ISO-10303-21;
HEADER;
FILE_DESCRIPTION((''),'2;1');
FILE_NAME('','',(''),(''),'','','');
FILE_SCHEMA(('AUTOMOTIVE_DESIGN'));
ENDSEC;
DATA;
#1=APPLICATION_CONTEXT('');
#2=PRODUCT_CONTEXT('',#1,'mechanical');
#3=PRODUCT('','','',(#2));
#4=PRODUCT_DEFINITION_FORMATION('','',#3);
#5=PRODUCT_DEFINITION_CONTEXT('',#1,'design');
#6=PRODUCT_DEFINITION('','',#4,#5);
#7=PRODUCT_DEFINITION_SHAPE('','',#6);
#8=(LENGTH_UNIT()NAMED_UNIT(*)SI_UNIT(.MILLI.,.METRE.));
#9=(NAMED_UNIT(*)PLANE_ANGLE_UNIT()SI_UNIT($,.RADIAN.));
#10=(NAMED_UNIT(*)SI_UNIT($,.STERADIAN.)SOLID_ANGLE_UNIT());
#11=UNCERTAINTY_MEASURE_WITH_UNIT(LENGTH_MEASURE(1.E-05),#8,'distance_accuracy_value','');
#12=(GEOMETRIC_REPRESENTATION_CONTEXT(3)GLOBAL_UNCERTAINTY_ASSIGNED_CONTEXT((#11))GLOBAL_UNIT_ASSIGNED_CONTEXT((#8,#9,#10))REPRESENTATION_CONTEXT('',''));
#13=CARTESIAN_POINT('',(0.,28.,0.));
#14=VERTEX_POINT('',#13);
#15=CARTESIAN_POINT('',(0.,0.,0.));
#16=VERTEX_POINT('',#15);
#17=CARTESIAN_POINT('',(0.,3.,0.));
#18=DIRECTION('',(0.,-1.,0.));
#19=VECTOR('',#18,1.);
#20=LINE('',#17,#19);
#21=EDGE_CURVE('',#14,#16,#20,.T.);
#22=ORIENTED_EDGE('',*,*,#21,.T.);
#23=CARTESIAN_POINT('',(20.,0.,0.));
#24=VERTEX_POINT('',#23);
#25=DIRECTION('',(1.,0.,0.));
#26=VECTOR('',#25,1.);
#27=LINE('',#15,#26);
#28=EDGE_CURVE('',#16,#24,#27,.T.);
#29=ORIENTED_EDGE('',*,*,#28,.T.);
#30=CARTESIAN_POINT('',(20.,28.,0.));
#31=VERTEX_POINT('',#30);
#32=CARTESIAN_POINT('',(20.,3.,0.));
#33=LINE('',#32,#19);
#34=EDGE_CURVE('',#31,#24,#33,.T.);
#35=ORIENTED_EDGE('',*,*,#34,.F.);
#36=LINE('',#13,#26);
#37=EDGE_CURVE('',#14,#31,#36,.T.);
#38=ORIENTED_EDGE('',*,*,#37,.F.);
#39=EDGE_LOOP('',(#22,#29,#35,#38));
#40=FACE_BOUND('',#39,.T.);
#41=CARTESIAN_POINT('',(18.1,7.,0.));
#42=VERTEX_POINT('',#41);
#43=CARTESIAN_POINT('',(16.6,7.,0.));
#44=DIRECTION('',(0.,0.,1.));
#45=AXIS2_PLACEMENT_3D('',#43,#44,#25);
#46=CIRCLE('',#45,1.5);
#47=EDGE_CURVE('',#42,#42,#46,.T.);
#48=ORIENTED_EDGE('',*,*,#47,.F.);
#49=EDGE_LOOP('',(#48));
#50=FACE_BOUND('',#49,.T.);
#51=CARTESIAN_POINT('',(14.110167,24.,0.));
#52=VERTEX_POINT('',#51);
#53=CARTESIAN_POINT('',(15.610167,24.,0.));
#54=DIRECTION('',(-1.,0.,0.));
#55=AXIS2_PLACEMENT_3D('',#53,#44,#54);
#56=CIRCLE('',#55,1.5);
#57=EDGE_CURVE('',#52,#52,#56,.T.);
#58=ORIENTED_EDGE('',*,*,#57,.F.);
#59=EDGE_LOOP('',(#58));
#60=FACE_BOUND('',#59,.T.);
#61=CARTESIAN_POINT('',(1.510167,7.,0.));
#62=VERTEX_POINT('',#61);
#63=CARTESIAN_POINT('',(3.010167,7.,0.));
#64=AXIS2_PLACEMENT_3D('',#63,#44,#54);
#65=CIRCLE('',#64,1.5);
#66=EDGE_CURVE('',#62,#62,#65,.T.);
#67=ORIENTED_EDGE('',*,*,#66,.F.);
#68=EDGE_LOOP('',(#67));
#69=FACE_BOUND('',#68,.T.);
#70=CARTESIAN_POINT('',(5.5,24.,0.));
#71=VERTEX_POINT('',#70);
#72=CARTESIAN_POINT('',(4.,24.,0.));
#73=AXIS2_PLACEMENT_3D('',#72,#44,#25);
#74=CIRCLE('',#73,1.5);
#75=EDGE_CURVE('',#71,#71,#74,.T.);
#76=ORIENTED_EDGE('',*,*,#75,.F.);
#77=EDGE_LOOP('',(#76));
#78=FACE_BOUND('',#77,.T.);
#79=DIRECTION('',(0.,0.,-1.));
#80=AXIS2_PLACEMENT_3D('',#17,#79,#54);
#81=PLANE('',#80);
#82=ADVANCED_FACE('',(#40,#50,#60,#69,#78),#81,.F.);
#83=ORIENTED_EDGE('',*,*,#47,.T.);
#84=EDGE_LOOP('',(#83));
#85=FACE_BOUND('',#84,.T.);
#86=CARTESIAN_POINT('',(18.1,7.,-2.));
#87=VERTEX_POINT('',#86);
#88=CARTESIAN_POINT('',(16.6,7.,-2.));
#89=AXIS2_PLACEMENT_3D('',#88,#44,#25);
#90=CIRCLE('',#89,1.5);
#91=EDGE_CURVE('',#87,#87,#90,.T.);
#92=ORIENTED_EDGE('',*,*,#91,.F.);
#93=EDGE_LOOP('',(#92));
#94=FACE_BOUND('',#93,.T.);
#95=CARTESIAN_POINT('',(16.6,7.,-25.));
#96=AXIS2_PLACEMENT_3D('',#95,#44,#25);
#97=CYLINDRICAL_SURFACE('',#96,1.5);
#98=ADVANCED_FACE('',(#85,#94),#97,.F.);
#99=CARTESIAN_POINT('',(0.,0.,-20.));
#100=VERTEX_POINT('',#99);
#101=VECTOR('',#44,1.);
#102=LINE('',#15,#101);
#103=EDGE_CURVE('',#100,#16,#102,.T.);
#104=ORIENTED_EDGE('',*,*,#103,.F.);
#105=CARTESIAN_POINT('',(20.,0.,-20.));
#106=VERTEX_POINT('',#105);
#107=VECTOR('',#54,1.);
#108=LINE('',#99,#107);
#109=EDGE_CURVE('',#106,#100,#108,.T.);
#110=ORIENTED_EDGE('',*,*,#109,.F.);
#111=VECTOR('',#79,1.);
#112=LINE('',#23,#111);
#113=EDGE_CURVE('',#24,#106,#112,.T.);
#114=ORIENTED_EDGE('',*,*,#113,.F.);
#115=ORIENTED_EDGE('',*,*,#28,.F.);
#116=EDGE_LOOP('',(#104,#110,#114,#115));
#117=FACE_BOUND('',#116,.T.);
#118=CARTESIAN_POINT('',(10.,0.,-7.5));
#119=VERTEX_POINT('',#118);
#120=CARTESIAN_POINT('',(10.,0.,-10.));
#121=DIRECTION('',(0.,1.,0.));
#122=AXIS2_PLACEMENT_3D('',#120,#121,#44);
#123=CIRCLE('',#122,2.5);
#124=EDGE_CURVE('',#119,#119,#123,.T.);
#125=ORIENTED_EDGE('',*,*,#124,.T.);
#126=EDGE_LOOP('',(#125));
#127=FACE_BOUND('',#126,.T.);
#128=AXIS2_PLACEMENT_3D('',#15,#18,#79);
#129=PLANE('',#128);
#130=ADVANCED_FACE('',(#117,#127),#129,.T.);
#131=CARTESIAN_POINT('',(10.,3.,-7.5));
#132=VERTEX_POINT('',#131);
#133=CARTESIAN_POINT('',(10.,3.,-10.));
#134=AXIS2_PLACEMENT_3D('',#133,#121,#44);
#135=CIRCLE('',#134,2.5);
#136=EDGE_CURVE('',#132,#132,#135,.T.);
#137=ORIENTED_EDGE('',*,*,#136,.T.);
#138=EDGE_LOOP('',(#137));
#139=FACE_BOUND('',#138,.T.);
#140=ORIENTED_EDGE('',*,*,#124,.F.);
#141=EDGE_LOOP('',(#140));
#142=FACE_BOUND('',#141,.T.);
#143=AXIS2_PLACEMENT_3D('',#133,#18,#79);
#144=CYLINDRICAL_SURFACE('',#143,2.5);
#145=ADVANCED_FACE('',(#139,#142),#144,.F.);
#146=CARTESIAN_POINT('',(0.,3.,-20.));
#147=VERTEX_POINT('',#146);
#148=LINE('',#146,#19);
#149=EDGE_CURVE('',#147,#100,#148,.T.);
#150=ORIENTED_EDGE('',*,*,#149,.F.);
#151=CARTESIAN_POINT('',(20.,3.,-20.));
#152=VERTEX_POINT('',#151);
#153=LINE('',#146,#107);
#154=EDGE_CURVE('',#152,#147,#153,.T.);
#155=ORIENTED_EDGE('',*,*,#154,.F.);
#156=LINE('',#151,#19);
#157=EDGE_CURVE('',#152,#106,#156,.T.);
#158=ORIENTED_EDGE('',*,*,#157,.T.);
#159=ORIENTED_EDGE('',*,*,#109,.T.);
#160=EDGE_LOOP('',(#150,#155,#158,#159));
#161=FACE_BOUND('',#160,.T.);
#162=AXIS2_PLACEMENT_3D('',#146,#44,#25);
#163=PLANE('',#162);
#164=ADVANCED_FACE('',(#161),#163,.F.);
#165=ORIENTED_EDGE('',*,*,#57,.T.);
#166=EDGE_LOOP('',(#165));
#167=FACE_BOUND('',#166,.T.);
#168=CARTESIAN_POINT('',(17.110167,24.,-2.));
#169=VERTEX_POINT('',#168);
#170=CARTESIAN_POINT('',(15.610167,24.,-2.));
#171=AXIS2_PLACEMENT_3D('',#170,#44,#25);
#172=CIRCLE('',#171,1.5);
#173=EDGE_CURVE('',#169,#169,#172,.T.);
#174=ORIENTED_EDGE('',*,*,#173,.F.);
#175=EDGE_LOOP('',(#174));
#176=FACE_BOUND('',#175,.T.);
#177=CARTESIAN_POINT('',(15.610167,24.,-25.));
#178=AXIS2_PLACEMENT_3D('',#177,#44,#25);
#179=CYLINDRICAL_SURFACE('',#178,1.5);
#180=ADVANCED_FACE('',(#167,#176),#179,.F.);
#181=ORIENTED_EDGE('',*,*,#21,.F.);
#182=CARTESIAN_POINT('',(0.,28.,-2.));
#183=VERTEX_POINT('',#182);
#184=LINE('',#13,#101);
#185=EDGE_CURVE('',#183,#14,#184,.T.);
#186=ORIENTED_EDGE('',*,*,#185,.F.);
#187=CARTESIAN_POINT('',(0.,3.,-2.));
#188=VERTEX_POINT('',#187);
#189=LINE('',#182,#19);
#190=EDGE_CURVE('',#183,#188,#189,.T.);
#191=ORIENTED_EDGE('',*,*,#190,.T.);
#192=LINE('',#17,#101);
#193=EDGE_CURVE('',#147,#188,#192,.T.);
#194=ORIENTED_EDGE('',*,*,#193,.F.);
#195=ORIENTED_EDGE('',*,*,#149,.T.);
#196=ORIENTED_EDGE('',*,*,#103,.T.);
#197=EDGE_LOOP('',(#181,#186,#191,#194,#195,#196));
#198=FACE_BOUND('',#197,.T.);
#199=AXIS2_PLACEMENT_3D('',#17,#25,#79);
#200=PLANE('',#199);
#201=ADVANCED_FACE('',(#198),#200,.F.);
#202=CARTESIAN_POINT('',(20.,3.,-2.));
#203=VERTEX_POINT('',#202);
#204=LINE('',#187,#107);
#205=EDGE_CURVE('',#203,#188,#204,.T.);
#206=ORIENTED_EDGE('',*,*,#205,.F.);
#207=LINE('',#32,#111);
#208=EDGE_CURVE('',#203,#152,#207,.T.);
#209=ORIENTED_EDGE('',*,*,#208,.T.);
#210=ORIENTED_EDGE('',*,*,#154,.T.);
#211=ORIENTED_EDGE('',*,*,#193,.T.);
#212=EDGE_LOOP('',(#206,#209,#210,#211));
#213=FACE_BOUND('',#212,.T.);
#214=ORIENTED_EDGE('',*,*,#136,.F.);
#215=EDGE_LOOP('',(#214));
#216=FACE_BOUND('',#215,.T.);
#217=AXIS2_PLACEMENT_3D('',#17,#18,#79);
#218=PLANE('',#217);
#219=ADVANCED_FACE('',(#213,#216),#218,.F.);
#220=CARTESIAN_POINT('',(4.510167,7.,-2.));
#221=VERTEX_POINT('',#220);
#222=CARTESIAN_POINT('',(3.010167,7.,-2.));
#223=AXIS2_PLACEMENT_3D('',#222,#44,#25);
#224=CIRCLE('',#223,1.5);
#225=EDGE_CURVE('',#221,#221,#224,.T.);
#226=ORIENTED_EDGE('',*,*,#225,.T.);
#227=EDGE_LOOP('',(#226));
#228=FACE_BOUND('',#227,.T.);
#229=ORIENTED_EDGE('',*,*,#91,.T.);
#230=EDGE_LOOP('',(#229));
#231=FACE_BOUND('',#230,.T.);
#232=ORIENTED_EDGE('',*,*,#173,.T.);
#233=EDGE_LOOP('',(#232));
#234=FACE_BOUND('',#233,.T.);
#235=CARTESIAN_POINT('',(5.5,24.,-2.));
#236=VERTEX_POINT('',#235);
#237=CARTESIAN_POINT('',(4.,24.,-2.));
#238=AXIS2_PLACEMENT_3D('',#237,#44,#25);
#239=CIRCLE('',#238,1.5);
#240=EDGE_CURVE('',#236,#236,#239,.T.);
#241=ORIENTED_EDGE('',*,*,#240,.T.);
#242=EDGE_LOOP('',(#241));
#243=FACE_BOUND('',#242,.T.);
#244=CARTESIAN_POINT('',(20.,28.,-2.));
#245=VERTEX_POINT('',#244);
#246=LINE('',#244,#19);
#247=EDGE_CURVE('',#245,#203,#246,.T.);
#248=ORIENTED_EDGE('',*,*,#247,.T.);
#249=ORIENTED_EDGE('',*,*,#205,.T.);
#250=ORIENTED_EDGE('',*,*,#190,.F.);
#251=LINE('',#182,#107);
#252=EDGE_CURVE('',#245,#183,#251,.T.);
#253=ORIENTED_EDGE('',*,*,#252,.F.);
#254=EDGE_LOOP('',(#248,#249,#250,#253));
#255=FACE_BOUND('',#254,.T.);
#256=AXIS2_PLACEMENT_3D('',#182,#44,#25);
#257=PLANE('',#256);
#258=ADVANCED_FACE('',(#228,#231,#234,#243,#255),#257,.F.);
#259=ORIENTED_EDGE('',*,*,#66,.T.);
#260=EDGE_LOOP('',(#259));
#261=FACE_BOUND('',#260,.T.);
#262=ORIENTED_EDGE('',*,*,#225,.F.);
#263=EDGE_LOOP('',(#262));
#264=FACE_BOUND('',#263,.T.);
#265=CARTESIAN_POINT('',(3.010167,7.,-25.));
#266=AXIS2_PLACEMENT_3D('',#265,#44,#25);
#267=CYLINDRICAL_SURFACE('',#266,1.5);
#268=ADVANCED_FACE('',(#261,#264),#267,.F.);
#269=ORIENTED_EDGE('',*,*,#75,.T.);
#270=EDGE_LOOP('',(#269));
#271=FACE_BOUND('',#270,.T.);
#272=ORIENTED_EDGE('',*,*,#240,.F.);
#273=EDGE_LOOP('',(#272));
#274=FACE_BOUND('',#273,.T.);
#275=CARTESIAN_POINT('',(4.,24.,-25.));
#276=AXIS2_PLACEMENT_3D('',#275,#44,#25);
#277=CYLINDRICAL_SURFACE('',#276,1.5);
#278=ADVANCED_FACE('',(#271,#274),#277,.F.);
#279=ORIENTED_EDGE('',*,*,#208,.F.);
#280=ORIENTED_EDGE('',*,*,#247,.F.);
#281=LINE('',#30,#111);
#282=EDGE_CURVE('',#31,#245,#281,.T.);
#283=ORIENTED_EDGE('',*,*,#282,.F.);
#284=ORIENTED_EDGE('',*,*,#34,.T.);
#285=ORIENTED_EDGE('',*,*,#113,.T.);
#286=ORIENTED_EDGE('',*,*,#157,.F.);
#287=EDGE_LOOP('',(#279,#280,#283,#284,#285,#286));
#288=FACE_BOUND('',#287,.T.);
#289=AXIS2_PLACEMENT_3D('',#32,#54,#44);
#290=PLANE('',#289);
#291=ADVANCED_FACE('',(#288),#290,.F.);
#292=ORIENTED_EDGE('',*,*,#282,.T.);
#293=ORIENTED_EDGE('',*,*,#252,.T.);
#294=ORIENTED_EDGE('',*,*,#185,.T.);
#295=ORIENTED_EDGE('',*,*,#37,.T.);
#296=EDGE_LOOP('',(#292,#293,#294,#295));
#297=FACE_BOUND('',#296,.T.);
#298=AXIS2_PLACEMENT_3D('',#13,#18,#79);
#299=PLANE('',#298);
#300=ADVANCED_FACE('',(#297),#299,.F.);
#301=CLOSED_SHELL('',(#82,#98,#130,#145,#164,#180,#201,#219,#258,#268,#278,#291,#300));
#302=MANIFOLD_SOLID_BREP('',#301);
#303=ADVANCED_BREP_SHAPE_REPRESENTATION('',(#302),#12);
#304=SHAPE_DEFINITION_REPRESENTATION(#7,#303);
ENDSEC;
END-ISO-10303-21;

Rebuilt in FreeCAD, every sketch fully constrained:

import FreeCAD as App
import Part
import Sketcher
from FreeCAD import Vector


def add_polygon(sketch, points):
    """Adds a closed chain of lines whose ends are joined by coincident constraints."""
    first, n = sketch.GeometryCount, len(points)
    for a, b in zip(points, points[1:] + points[:1]):
        sketch.addGeometry(Part.LineSegment(App.Vector(*a, 0), App.Vector(*b, 0)), False)
    for i in range(n):
        sketch.addConstraint(Sketcher.Constraint("Coincident", first + i, 2, first + (i + 1) % n, 1))

doc = App.newDocument("Part")
body = doc.addObject("PartDesign::Body", "Body")

sketch1 = doc.addObject("Sketcher::SketchObject", "Sketch")
body.addObject(sketch1)
sketch1.AttachmentSupport = (doc.XZ_Plane, [""])
sketch1.MapMode = "FlatFace"
add_polygon(sketch1, [(0, -20), (0, 0), (20, 0), (20, -20)])
sketch1.addGeometry(Part.Circle(Vector(10, -10, 0), Vector(0, 0, 1), 2.5), False)
sketch1.addConstraint([
    Sketcher.Constraint("Vertical", 0),
    Sketcher.Constraint("Horizontal", 1),
    Sketcher.Constraint("Vertical", 2),
    Sketcher.Constraint("Horizontal", 3),
    Sketcher.Constraint("Coincident", 0, 2, -1, 1),
    Sketcher.Constraint("Equal", 3, 0),
    Sketcher.Constraint("Diameter", 4, 5.0),
    Sketcher.Constraint("DistanceX", 1, 1, 1, 2, 20.0),
    Sketcher.Constraint("DistanceX", -1, 1, 4, 3, 10.0),
    Sketcher.Constraint("DistanceY", 4, 3, -1, 1, 10.0),
])
pad1 = doc.addObject("PartDesign::Pad", "Pad")
body.addObject(pad1)
pad1.Profile = sketch1
pad1.Length = 3
pad1.Reversed = True

sketch2 = doc.addObject("Sketcher::SketchObject", "Sketch001")
body.addObject(sketch2)
sketch2.AttachmentSupport = (doc.XZ_Plane, [""])
sketch2.MapMode = "FlatFace"
sketch2.AttachmentOffset = App.Placement(Vector(0, 0, -3), App.Rotation())
add_polygon(sketch2, [(0, -2), (0, 0), (20, 0), (20, -2)])
sketch2.addConstraint([
    Sketcher.Constraint("Vertical", 0),
    Sketcher.Constraint("Horizontal", 1),
    Sketcher.Constraint("Vertical", 2),
    Sketcher.Constraint("Horizontal", 3),
    Sketcher.Constraint("Coincident", 0, 2, -1, 1),
    Sketcher.Constraint("DistanceX", 1, 1, 1, 2, 20.0),
    Sketcher.Constraint("DistanceY", 0, 1, 0, 2, 2.0),
])
pad2 = doc.addObject("PartDesign::Pad", "Pad001")
body.addObject(pad2)
pad2.Profile = sketch2
pad2.Length = 25
pad2.Reversed = True

sketch3 = doc.addObject("Sketcher::SketchObject", "Sketch002")
body.addObject(sketch3)
sketch3.AttachmentSupport = (doc.XY_Plane, [""])
sketch3.MapMode = "FlatFace"
sketch3.addGeometry([
    Part.Circle(Vector(4, 24, 0), Vector(0, 0, 1), 1.5),
    Part.Circle(Vector(16.6, 7, 0), Vector(0, 0, 1), 1.5),
    Part.Circle(Vector(3.010167, 7, 0), Vector(0, 0, 1), 1.5),
    Part.Circle(Vector(15.610167, 24, 0), Vector(0, 0, 1), 1.5),
], False)
sketch3.addConstraint([
    Sketcher.Constraint("Equal", 0, 1),
    Sketcher.Constraint("Equal", 1, 2),
    Sketcher.Constraint("Equal", 2, 3),
    Sketcher.Constraint("Horizontal", 1, 3, 2, 3),
    Sketcher.Constraint("Horizontal", 0, 3, 3, 3),
    Sketcher.Constraint("Diameter", 0, 3.0),
    Sketcher.Constraint("DistanceX", -1, 1, 0, 3, 4.0),
    Sketcher.Constraint("DistanceY", -1, 1, 0, 3, 24.0),
    Sketcher.Constraint("DistanceY", -1, 1, 1, 3, 7.0),
    Sketcher.Constraint("DistanceX", -1, 1, 1, 3, 16.6),
    Sketcher.Constraint("DistanceX", 2, 3, 3, 3, 12.6),
    Sketcher.Constraint("DistanceX", -1, 1, 2, 3, 3.010167),
])
pocket1 = doc.addObject("PartDesign::Pocket", "Pocket")
body.addObject(pocket1)
pocket1.Profile = sketch3
pocket1.Length = 25

doc.recompute()
